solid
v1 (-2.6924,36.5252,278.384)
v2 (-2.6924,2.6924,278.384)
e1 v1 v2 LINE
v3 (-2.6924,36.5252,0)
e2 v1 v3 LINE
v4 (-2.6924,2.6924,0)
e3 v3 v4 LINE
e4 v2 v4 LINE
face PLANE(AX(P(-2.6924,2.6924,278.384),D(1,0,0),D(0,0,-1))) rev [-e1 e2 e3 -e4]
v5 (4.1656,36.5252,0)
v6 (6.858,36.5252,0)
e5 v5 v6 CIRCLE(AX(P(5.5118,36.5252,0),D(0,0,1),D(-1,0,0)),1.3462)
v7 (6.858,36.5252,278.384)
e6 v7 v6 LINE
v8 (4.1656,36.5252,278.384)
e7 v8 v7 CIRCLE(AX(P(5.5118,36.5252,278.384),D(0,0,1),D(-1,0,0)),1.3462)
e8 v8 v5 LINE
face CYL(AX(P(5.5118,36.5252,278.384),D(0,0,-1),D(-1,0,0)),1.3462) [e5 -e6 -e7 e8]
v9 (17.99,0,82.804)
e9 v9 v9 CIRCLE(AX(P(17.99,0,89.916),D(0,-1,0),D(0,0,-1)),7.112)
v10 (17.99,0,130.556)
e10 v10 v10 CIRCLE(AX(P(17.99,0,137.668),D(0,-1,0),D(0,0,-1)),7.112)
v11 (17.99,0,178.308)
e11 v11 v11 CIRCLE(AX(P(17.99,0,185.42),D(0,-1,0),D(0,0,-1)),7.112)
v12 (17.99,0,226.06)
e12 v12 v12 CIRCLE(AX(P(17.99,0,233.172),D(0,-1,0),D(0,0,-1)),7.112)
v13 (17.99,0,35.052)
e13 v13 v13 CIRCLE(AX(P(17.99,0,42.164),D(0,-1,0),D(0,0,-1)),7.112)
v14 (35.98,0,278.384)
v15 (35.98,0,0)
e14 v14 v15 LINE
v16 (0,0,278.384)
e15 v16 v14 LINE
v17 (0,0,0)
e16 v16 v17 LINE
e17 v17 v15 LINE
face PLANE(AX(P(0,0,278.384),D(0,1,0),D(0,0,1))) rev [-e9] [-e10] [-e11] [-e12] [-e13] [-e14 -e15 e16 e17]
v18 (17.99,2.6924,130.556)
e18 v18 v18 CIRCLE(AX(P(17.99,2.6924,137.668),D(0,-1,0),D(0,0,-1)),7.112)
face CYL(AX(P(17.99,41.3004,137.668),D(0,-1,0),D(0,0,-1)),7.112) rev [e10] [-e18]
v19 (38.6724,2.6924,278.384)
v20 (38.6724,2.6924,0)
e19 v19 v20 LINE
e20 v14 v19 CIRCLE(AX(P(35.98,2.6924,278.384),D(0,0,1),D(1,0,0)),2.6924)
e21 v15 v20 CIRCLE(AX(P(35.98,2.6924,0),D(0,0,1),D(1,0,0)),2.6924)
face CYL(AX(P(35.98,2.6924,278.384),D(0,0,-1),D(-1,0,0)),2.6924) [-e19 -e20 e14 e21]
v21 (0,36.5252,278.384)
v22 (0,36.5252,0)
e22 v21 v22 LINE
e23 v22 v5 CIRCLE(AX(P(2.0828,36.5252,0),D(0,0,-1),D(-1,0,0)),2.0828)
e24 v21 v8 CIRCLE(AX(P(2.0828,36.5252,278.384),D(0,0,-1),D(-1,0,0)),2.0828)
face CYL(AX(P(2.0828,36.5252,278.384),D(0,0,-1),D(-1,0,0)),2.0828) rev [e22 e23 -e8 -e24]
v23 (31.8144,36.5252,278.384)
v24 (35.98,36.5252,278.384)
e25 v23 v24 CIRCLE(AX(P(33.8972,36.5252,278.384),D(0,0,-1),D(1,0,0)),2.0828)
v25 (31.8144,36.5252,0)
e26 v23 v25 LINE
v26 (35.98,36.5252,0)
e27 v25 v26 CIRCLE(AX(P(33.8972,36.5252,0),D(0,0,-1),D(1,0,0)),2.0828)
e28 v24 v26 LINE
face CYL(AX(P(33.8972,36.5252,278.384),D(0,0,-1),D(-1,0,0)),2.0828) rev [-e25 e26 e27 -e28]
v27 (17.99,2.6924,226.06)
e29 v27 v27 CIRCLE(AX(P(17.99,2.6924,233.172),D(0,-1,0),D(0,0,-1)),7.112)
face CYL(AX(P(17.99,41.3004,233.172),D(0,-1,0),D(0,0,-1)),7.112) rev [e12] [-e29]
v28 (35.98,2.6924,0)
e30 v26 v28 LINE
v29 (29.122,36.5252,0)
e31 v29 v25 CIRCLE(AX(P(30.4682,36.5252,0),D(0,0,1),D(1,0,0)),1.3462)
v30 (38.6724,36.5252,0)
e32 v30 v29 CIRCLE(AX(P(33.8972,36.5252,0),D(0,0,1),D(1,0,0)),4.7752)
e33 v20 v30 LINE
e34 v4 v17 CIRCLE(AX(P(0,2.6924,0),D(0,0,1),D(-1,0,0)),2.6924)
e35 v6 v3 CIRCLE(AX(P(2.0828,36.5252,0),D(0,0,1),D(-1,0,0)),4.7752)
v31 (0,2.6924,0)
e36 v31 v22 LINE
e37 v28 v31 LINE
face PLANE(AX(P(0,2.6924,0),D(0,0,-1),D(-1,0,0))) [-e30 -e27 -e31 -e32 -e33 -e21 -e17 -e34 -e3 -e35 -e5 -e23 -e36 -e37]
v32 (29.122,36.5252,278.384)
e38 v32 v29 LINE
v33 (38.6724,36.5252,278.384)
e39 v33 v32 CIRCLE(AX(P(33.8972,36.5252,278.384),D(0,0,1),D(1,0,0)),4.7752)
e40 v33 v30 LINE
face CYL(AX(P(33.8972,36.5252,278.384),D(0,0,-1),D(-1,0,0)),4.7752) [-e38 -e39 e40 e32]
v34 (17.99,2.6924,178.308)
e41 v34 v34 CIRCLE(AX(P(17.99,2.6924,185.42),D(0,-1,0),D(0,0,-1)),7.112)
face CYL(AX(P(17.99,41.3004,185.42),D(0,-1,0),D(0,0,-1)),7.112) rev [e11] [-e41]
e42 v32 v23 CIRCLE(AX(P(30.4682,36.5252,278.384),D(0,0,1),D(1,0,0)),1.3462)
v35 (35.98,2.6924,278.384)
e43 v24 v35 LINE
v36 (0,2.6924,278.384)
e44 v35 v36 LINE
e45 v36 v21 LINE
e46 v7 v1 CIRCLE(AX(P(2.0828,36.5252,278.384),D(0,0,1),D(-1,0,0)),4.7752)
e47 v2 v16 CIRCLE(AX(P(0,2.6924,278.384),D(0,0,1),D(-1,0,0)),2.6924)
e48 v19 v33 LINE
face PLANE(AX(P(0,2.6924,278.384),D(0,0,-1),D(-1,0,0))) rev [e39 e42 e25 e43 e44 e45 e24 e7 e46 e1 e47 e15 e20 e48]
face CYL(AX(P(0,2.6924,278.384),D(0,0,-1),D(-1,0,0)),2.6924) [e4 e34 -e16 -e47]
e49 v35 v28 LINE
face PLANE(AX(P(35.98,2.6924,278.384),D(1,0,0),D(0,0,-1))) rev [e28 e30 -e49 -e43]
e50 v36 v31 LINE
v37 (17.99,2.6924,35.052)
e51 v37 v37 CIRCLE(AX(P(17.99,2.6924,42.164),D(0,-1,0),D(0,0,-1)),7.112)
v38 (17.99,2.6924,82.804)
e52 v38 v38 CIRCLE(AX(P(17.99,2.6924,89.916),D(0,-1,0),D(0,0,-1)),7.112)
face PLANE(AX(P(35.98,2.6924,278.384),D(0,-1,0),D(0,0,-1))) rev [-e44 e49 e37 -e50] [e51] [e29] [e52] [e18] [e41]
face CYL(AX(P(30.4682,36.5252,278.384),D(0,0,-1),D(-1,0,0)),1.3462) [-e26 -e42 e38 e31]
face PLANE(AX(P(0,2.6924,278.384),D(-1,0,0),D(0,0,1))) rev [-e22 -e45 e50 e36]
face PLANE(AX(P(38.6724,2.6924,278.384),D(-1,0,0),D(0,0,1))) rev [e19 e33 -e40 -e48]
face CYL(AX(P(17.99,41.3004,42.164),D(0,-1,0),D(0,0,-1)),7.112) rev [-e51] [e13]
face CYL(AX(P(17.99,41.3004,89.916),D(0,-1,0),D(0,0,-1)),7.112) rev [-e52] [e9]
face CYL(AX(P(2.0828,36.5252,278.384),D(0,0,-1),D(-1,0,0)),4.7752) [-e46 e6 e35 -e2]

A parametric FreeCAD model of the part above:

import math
import FreeCAD as App
import Part
import Sketcher
from FreeCAD import Vector
Q = App.Units.Quantity

doc = App.newDocument("Part")
body = doc.addObject("PartDesign::Body", "Body")

# Sketch on XY plane
sketch1 = body.newObject("Sketcher::SketchObject", "Sketch")
sketch1.AttachmentSupport = (doc.getObject("XY_Plane"), [""])
sketch1.MapMode = "FlatFace"
sketch1.addGeometry(Part.LineSegment(Vector(0, 0, 0), Vector(35.98, 0, 0)), False)
sketch1.addGeometry(Part.ArcOfCircle(Part.Circle(Vector(35.98, 2.6924, 0), Vector(0, 0, 1), 2.6924), math.radians(-90), math.radians(0)), False)
sketch1.addGeometry(Part.LineSegment(Vector(38.6724, 2.6924, 0), Vector(38.6724, 36.5252, 0)), False)
sketch1.addGeometry(Part.ArcOfCircle(Part.Circle(Vector(33.8972, 36.5252, 0), Vector(0, 0, 1), 4.7752), math.radians(0), math.radians(180)), False)
sketch1.addGeometry(Part.ArcOfCircle(Part.Circle(Vector(30.4682, 36.5252, 0), Vector(0, 0, 1), 1.3462), math.radians(180), math.radians(360)), False)
sketch1.addGeometry(Part.ArcOfCircle(Part.Circle(Vector(33.8972, 36.5252, 0), Vector(0, 0, 1), 2.0828), math.radians(0), math.radians(180)), False)
sketch1.addGeometry(Part.LineSegment(Vector(35.98, 36.5252, 0), Vector(35.98, 2.6924, 0)), False)
sketch1.addGeometry(Part.LineSegment(Vector(35.98, 2.6924, 0), Vector(0, 2.6924, 0)), False)
sketch1.addGeometry(Part.LineSegment(Vector(0, 2.6924, 0), Vector(0, 36.5252, 0)), False)
sketch1.addGeometry(Part.ArcOfCircle(Part.Circle(Vector(2.0828, 36.5252, 0), Vector(0, 0, 1), 2.0828), math.radians(0), math.radians(180)), False)
sketch1.addGeometry(Part.ArcOfCircle(Part.Circle(Vector(5.5118, 36.5252, 0), Vector(0, 0, 1), 1.3462), math.radians(180), math.radians(360)), False)
sketch1.addGeometry(Part.ArcOfCircle(Part.Circle(Vector(2.0828, 36.5252, 0), Vector(0, 0, 1), 4.7752), math.radians(0), math.radians(180)), False)
sketch1.addGeometry(Part.LineSegment(Vector(-2.6924, 36.5252, 0), Vector(-2.6924, 2.6924, 0)), False)
sketch1.addGeometry(Part.ArcOfCircle(Part.Circle(Vector(0, 2.6924, 0), Vector(0, 0, 1), 2.6924), math.radians(180), math.radians(270)), False)
sketch1.addConstraint(Sketcher.Constraint("Tangent", 0, 2, 1, 1))
sketch1.addConstraint(Sketcher.Constraint("Tangent", 1, 2, 2, 1))
sketch1.addConstraint(Sketcher.Constraint("Tangent", 2, 2, 3, 1))
sketch1.addConstraint(Sketcher.Constraint("Tangent", 3, 2, 4, 1))
sketch1.addConstraint(Sketcher.Constraint("Tangent", 4, 2, 5, 2))
sketch1.addConstraint(Sketcher.Constraint("Tangent", 5, 1, 6, 1))
sketch1.addConstraint(Sketcher.Constraint("Coincident", 6, 2, 7, 1))
sketch1.addConstraint(Sketcher.Constraint("Coincident", 7, 2, 8, 1))
sketch1.addConstraint(Sketcher.Constraint("Tangent", 8, 2, 9, 2))
sketch1.addConstraint(Sketcher.Constraint("Tangent", 9, 1, 10, 1))
sketch1.addConstraint(Sketcher.Constraint("Tangent", 10, 2, 11, 1))
sketch1.addConstraint(Sketcher.Constraint("Tangent", 11, 2, 12, 1))
sketch1.addConstraint(Sketcher.Constraint("Tangent", 12, 2, 13, 1))
sketch1.addConstraint(Sketcher.Constraint("Tangent", 13, 2, 0, 1))
sketch1.addConstraint(Sketcher.Constraint("Horizontal", 0))
sketch1.addConstraint(Sketcher.Constraint("Vertical", 2))
sketch1.addConstraint(Sketcher.Constraint("Vertical", 6))
sketch1.addConstraint(Sketcher.Constraint("Horizontal", 7))
sketch1.addConstraint(Sketcher.Constraint("Vertical", 8))
sketch1.addConstraint(Sketcher.Constraint("Vertical", 12))
sketch1.addConstraint(Sketcher.Constraint("Coincident", 13, 2, -1, 1))
sketch1.addConstraint(Sketcher.Constraint("Coincident", 5, 3, 3, 3))
sketch1.addConstraint(Sketcher.Constraint("Coincident", 11, 3, 9, 3))
sketch1.addConstraint(Sketcher.Constraint("Coincident", 6, 2, 1, 3))
sketch1.addConstraint(Sketcher.Constraint("Coincident", 7, 2, 13, 3))
sketch1.addConstraint(Sketcher.Constraint("Equal", 5, 9))
sketch1.addConstraint(Sketcher.Constraint("Horizontal", 3, 3, 4, 3))
sketch1.addConstraint(Sketcher.Constraint("Horizontal", 5, 3, 9, 3))
sketch1.addConstraint(Sketcher.Constraint("Horizontal", 9, 3, 10, 3))
sketch1.addConstraint(Sketcher.Constraint("Radius", 1, Q("0.106 in")))
sketch1.addConstraint(Sketcher.Constraint("Radius", 3, Q("0.188 in")))
sketch1.addConstraint(Sketcher.Constraint("DistanceY", 2, 1, 2, 2, Q("1.332 in")))
sketch1.addConstraint(Sketcher.Constraint("DistanceX", 0, 1, 0, 2, Q("35.98 mm")))
pad1 = body.newObject("PartDesign::Pad", "Pad")
pad1.Profile = sketch1
pad1.Length = Q("10.96 in")

# Sketch on XZ plane
sketch2 = body.newObject("Sketcher::SketchObject", "Sketch001")
sketch2.AttachmentSupport = (doc.getObject("XZ_Plane"), [""])
sketch2.MapMode = "FlatFace"
sketch2.addGeometry(Part.Circle(Vector(17.99, 42.164, 0), Vector(0, 0, 1), 7.112), False)
sketch2.addConstraint(Sketcher.Constraint("Diameter", 0, Q("0.56 in")))
sketch2.addConstraint(Sketcher.Constraint("DistanceY", -1, 1, 0, 3, Q("1.66 in")))
sketch2.addConstraint(Sketcher.Constraint("DistanceX", -1, 1, 0, 3, Q("17.99 mm")))
pocket1 = body.newObject("PartDesign::Pocket", "Pocket")
pocket1.Profile = sketch2
pocket1.Type = "ThroughAll"
doc.recompute()

linearpattern = body.newObject("PartDesign::LinearPattern", "LinearPattern")
linearpattern.Originals = [pocket1]
linearpattern.Direction = (doc.getObject("Z_Axis"), [""])
linearpattern.Mode = "offset"
linearpattern.Offset = Q("1.88 in")
linearpattern.Occurrences = 5
body.Tip = linearpattern

doc.recompute()
